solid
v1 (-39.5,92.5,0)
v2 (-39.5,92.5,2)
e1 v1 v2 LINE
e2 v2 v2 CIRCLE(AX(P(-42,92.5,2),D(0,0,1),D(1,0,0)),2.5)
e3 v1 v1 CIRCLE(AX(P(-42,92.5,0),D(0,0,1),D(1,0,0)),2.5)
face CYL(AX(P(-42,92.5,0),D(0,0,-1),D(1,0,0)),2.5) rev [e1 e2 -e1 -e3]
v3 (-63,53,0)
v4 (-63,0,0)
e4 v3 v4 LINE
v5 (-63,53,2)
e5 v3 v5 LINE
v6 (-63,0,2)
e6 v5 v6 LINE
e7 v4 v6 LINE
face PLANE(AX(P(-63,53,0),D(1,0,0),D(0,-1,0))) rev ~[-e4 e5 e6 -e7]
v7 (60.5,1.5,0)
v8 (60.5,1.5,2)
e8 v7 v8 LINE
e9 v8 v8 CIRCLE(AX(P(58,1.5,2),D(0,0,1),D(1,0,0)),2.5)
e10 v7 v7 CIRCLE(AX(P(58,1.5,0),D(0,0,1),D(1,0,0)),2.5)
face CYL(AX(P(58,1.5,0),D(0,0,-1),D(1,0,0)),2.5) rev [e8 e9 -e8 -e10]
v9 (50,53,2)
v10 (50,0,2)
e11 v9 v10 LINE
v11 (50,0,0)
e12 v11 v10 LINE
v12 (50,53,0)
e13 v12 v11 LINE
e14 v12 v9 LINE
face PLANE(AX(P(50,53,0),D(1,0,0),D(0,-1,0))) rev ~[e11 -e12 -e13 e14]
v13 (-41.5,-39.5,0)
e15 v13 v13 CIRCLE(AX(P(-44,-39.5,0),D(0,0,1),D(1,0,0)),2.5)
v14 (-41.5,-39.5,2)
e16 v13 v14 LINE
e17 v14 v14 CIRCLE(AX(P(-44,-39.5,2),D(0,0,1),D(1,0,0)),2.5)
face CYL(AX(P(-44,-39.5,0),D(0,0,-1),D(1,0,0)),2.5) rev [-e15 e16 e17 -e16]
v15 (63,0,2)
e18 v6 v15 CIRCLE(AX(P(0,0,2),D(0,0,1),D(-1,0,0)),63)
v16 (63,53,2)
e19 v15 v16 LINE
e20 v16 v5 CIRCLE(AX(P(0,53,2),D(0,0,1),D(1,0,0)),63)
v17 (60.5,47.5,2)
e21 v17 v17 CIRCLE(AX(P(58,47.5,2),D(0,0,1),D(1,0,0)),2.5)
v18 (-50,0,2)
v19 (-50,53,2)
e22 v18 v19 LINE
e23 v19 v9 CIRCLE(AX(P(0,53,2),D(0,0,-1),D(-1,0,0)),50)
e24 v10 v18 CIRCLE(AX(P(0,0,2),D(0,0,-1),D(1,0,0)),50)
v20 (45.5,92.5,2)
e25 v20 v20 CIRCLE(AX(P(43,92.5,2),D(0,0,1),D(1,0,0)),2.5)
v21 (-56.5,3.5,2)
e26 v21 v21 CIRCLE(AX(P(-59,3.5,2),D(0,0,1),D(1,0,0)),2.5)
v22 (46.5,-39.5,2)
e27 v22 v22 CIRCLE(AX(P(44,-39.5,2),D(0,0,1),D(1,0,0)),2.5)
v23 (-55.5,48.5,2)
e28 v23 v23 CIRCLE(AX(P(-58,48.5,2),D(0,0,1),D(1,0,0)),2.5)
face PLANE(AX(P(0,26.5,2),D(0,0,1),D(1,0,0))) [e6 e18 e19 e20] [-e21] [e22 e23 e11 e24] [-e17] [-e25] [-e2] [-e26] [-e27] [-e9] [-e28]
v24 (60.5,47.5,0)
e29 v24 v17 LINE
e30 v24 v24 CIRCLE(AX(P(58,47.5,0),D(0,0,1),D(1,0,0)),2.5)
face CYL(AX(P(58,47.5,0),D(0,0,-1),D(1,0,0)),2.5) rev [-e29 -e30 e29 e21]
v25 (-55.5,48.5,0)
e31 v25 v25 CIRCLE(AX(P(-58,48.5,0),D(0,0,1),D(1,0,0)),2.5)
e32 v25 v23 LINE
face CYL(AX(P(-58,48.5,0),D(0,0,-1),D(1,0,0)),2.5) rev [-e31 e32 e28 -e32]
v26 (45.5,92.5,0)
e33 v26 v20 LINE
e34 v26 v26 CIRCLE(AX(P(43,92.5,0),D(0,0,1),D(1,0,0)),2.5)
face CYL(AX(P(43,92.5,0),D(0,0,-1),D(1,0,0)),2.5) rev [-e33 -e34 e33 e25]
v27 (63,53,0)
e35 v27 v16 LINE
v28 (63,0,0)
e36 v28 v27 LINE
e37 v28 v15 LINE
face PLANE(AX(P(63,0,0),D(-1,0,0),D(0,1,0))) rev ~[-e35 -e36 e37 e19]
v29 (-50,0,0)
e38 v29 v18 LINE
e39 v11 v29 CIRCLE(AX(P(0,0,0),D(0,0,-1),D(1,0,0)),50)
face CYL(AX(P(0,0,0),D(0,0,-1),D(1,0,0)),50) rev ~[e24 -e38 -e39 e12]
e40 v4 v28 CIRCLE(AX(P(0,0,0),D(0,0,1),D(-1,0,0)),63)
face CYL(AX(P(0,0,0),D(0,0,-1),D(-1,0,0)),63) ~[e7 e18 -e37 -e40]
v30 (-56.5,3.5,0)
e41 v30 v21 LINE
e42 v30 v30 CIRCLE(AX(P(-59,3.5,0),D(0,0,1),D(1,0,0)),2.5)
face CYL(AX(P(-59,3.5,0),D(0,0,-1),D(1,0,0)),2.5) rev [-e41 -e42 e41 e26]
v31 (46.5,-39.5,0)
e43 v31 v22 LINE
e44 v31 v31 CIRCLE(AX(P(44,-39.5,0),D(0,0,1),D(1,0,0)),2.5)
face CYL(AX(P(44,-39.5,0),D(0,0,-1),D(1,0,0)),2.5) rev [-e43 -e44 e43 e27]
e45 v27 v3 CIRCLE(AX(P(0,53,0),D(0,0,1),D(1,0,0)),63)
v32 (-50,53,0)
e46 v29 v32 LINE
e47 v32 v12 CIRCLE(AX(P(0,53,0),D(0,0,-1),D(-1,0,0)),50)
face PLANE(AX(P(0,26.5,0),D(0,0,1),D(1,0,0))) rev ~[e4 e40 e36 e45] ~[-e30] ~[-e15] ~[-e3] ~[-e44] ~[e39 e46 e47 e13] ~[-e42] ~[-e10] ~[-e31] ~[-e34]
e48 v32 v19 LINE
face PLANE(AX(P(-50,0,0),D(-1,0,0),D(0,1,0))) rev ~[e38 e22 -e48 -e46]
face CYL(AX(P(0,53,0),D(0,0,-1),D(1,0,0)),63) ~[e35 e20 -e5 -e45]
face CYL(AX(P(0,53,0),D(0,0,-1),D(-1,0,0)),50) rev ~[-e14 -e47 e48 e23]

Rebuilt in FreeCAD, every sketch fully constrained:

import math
import FreeCAD as App
import Part
import Sketcher

V = App.Vector
Q = App.Units.Quantity

doc = App.newDocument("Part")
body = doc.addObject("PartDesign::Body", "Body")

# Sketch on XY plane
sketch1 = body.newObject("Sketcher::SketchObject", "Sketch")
sketch1.AttachmentSupport = (doc.getObject("XY_Plane"), [""])
sketch1.MapMode = "FlatFace"
sketch1.addGeometry([
    Part.LineSegment(V(-63, 53, 0), V(-63, 0, 0)),  # 0
    Part.ArcOfCircle(Part.Circle(V(0, 0, 0), V(0, 0, 1), 63), math.radians(180), math.radians(360)),  # 1
    Part.LineSegment(V(63, 0, 0), V(63, 53, 0)),  # 2
    Part.ArcOfCircle(Part.Circle(V(0, 53, 0), V(0, 0, 1), 63), math.radians(0), math.radians(180)),  # 3
    Part.Circle(V(-44, -39.5, 0), V(0, 0, 1), 2.5),  # 4
    Part.Circle(V(-59, 3.5, 0), V(0, 0, 1), 2.5),  # 5
    Part.Circle(V(44, -39.5, 0), V(0, 0, 1), 2.5),  # 6
    Part.Circle(V(58, 1.5, 0), V(0, 0, 1), 2.5),  # 7
    Part.Circle(V(-58, 48.5, 0), V(0, 0, 1), 2.5),  # 8
    Part.Circle(V(-42, 92.5, 0), V(0, 0, 1), 2.5),  # 9
    Part.ArcOfCircle(Part.Circle(V(0, 53, 0), V(0, 0, 1), 50), math.radians(0), math.radians(180)),  # 10
    Part.LineSegment(V(50, 53, 0), V(50, 0, 0)),  # 11
    Part.ArcOfCircle(Part.Circle(V(0, 0, 0), V(0, 0, 1), 50), math.radians(180), math.radians(360)),  # 12
    Part.LineSegment(V(-50, 0, 0), V(-50, 53, 0)),  # 13
    Part.Circle(V(58, 47.5, 0), V(0, 0, 1), 2.5),  # 14
    Part.Circle(V(43, 92.5, 0), V(0, 0, 1), 2.5),  # 15
], False)
sketch1.addConstraint([
    Sketcher.Constraint("Tangent", 0, 2, 1, 1),
    Sketcher.Constraint("Tangent", 1, 2, 2, 1),
    Sketcher.Constraint("Tangent", 2, 2, 3, 1),
    Sketcher.Constraint("Tangent", 3, 2, 0, 1),
    Sketcher.Constraint("Tangent", 10, 1, 11, 1),
    Sketcher.Constraint("Tangent", 11, 2, 12, 2),
    Sketcher.Constraint("Tangent", 12, 1, 13, 1),
    Sketcher.Constraint("Tangent", 13, 2, 10, 2),
    Sketcher.Constraint("Vertical", 0),
    Sketcher.Constraint("Vertical", 2),
    Sketcher.Constraint("Vertical", 11),
    Sketcher.Constraint("Vertical", 13),
    Sketcher.Constraint("Coincident", 1, 3, -1, 1),
    Sketcher.Constraint("Coincident", 12, 3, -1, 1),
    Sketcher.Constraint("Equal", 4, 5),
    Sketcher.Constraint("Equal", 5, 6),
    Sketcher.Constraint("Equal", 6, 7),
    Sketcher.Constraint("Equal", 7, 8),
    Sketcher.Constraint("Equal", 8, 9),
    Sketcher.Constraint("Equal", 9, 14),
    Sketcher.Constraint("Equal", 14, 15),
    Sketcher.Constraint("Symmetric", 4, 3, 6, 3, -2),
    Sketcher.Constraint("Horizontal", 9, 3, 15, 3),
    Sketcher.Constraint("Horizontal", 10, 3, 2, 2),
    Sketcher.Constraint("Vertical", 7, 3, 14, 3),
    Sketcher.Constraint("Diameter", 4, Q("5 mm")),
    Sketcher.Constraint("Radius", 1, Q("63 mm")),
    Sketcher.Constraint("Radius", 10, Q("50 mm")),
    Sketcher.Constraint("DistanceY", 0, 2, 0, 1, Q("53 mm")),
    Sketcher.Constraint("DistanceX", 4, 3, -1, 1, Q("44 mm")),
    Sketcher.Constraint("DistanceX", 5, 3, -1, 1, Q("59 mm")),
    Sketcher.Constraint("DistanceX", -1, 1, 7, 3, Q("58 mm")),
    Sketcher.Constraint("DistanceX", 8, 3, -1, 1, Q("58 mm")),
    Sketcher.Constraint("DistanceX", 9, 3, -1, 1, Q("42 mm")),
    Sketcher.Constraint("DistanceX", -1, 1, 15, 3, Q("43 mm")),
    Sketcher.Constraint("DistanceY", 4, 3, 5, 3, Q("43 mm")),
    Sketcher.Constraint("DistanceY", 6, 3, 7, 3, Q("41 mm")),
    Sketcher.Constraint("DistanceY", 5, 3, 8, 3, Q("45 mm")),
    Sketcher.Constraint("DistanceY", 8, 3, 9, 3, Q("44 mm")),
    Sketcher.Constraint("DistanceY", 7, 3, 14, 3, Q("46 mm")),
    Sketcher.Constraint("DistanceY", 4, 3, -1, 1, Q("39.5 mm")),
])
pad1 = body.newObject("PartDesign::Pad", "Pad")
pad1.Profile = sketch1
pad1.Length = 2

doc.recompute()
